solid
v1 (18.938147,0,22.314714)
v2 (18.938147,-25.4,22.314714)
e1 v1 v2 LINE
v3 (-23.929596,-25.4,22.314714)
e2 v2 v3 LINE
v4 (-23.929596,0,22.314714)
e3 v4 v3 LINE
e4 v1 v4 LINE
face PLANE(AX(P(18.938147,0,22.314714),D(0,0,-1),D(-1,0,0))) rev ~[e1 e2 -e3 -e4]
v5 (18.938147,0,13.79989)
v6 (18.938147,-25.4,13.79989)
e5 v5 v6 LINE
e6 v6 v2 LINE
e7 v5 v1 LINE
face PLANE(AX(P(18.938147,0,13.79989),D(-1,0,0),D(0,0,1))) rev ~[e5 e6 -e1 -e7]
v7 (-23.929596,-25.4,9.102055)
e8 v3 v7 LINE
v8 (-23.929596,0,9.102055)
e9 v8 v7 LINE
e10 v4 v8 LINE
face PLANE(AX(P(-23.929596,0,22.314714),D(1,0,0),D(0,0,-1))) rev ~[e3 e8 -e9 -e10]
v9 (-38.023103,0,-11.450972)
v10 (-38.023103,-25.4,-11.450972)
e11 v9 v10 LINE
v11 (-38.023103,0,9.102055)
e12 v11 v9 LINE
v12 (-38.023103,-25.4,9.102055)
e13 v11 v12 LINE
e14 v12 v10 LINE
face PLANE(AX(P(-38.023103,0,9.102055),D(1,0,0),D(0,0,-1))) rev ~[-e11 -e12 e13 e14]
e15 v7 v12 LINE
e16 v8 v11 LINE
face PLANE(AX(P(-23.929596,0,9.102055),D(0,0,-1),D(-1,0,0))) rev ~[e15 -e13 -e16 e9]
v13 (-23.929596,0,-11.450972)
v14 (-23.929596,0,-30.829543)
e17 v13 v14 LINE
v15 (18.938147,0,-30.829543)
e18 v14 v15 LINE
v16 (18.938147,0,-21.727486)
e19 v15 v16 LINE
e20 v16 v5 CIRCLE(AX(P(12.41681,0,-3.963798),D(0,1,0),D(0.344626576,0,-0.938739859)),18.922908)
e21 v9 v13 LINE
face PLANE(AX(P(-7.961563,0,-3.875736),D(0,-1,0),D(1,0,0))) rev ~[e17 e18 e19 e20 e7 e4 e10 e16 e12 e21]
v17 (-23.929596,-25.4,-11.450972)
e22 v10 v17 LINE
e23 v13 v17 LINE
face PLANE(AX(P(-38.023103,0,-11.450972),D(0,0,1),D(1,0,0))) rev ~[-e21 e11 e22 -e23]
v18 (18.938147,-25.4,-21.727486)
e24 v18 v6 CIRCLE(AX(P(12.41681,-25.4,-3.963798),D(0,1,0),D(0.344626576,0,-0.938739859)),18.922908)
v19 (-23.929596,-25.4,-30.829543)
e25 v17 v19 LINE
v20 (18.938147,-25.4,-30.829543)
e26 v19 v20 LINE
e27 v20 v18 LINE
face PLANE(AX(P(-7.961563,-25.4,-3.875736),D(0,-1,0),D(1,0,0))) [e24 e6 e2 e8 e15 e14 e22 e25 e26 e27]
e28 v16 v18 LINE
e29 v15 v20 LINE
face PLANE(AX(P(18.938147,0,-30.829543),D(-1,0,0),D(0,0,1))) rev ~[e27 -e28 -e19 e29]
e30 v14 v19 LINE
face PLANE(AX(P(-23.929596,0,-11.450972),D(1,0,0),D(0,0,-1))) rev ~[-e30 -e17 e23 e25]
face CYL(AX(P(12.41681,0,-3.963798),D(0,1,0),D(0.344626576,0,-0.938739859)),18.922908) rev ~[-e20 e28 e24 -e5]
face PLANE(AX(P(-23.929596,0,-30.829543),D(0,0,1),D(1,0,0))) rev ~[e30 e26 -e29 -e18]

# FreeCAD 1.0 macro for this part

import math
import FreeCAD as App
import Part
import Sketcher

V = App.Vector
Q = App.Units.Quantity

doc = App.newDocument("Part")
body = doc.addObject("PartDesign::Body", "Body")

# Sketch on XZ plane
sketch1 = body.newObject("Sketcher::SketchObject", "Sketch")
sketch1.AttachmentSupport = (doc.getObject("XZ_Plane"), [""])
sketch1.MapMode = "FlatFace"
sketch1.addGeometry([
    Part.LineSegment(V(-24, -11, 0), V(-24, -31, 0)),  # 0
    Part.LineSegment(V(-24, -31, 0), V(19, -31, 0)),  # 1
    Part.LineSegment(V(19, -31, 0), V(19, -22, 0)),  # 2
    Part.ArcOfCircle(Part.Circle(V(12, -4, 0), V(0, 0, 1), 19), math.radians(70), math.radians(290)),  # 3
    Part.LineSegment(V(19, 14, 0), V(19, 22, 0)),  # 4
    Part.LineSegment(V(19, 22, 0), V(-24, 22, 0)),  # 5
    Part.LineSegment(V(-24, 22, 0), V(-24, 9, 0)),  # 6
    Part.LineSegment(V(-24, 9, 0), V(-38, 9, 0)),  # 7
    Part.LineSegment(V(-38, 9, 0), V(-38, -11, 0)),  # 8
    Part.LineSegment(V(-38, -11, 0), V(-24, -11, 0)),  # 9
], False)
sketch1.addConstraint([
    Sketcher.Constraint("Coincident", 0, 2, 1, 1),
    Sketcher.Constraint("Coincident", 1, 2, 2, 1),
    Sketcher.Constraint("Coincident", 2, 2, 3, 2),
    Sketcher.Constraint("Coincident", 3, 1, 4, 1),
    Sketcher.Constraint("Coincident", 4, 2, 5, 1),
    Sketcher.Constraint("Coincident", 5, 2, 6, 1),
    Sketcher.Constraint("Coincident", 6, 2, 7, 1),
    Sketcher.Constraint("Coincident", 7, 2, 8, 1),
    Sketcher.Constraint("Coincident", 8, 2, 9, 1),
    Sketcher.Constraint("Coincident", 9, 2, 0, 1),
    Sketcher.Constraint("Vertical", 0),
    Sketcher.Constraint("Horizontal", 1),
    Sketcher.Constraint("Vertical", 2),
    Sketcher.Constraint("Vertical", 4),
    Sketcher.Constraint("Horizontal", 5),
    Sketcher.Constraint("Vertical", 6),
    Sketcher.Constraint("Horizontal", 7),
    Sketcher.Constraint("Vertical", 8),
    Sketcher.Constraint("Horizontal", 9),
    Sketcher.Constraint("Vertical", 2, 2, 3, 1),
    Sketcher.Constraint("Vertical", 0, 2, 5, 2),
    Sketcher.Constraint("Radius", 3, 18.922908),
    Sketcher.Constraint("DistanceY", 0, 2, 0, 1, 19.378571),
    Sketcher.Constraint("DistanceY", 6, 2, 6, 1, 13.212659),
    Sketcher.Constraint("DistanceY", 3, 3, -1, 1, 3.963798),
    Sketcher.Constraint("DistanceY", 2, 2, 4, 2, 44.0422),
    Sketcher.Constraint("DistanceX", 1, 1, 1, 2, 42.867743),
    Sketcher.Constraint("DistanceX", 7, 2, 7, 1, 14.093507),
    Sketcher.Constraint("DistanceY", 2, 1, 2, 2, 9.102057),
    Sketcher.Constraint("DistanceY", 4, 1, 4, 2, 8.514824),
    Sketcher.Constraint("DistanceX", -1, 1, 3, 3, 12.41681),
])
pad1 = body.newObject("PartDesign::Pad", "Pad")
pad1.Profile = sketch1
pad1.Length = Q("1 in")

doc.recompute()
